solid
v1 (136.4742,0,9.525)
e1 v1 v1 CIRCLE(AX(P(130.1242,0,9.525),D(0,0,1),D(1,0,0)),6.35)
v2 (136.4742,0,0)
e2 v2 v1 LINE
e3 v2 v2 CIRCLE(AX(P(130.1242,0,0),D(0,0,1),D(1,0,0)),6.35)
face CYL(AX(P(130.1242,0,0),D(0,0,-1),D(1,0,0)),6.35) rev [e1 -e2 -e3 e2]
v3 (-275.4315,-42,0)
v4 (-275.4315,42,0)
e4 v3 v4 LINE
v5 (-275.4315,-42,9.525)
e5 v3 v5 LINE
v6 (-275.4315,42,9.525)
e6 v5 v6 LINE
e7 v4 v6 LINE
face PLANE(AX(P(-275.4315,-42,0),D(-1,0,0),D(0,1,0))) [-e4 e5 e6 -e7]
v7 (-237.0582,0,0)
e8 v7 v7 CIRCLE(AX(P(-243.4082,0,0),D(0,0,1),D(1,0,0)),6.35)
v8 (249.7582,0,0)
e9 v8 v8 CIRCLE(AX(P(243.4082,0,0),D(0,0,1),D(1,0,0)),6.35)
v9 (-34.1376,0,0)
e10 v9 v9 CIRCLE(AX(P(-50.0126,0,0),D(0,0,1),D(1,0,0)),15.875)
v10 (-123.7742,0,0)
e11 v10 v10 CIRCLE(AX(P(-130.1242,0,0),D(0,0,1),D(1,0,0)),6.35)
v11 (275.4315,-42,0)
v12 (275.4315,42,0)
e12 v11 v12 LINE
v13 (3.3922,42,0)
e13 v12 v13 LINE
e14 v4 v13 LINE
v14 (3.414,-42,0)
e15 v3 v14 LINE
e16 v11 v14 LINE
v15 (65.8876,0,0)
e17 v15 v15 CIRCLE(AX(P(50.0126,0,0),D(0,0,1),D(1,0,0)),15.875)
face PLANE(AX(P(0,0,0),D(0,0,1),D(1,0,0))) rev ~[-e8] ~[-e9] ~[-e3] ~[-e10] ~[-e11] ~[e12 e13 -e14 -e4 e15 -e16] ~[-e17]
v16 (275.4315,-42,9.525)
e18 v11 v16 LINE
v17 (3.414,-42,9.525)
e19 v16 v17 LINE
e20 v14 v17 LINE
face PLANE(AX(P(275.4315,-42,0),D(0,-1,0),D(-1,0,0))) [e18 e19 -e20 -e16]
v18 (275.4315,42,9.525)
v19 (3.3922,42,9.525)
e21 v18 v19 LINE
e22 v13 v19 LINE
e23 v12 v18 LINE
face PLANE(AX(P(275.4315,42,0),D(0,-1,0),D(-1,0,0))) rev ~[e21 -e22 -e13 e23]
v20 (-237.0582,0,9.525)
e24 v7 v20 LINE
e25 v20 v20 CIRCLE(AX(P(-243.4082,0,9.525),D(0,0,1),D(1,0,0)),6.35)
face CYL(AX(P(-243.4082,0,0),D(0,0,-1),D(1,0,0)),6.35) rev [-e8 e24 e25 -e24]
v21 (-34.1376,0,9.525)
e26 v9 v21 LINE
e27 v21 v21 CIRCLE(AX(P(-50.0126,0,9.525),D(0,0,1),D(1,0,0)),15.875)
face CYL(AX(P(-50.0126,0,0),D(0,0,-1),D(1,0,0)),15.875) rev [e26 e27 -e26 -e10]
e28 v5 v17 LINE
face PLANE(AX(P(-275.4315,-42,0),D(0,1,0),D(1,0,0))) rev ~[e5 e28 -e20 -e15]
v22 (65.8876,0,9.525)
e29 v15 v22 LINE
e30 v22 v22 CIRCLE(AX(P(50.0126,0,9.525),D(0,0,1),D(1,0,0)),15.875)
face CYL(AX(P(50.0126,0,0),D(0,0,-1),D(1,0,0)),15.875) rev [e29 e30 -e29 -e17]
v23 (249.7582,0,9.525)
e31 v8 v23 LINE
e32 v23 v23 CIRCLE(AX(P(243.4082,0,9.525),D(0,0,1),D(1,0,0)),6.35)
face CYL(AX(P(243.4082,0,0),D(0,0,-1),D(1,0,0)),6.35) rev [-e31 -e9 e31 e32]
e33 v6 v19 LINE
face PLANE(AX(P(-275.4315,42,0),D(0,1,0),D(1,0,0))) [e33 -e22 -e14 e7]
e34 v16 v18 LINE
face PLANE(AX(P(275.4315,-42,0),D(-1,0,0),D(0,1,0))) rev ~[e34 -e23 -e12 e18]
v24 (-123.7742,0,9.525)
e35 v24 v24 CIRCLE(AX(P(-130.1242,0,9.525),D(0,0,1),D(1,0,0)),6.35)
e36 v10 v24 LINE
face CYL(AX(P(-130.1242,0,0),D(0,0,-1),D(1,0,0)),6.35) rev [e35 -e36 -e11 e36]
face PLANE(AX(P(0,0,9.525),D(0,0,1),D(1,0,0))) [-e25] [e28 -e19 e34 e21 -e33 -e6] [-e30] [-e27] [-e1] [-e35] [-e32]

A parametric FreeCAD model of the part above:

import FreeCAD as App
import Part
import Sketcher
Q = App.Units.Quantity

doc = App.newDocument("Part")
body = doc.addObject("PartDesign::Body", "Body")

# Sketch on XY plane
sketch1 = body.newObject("Sketcher::SketchObject", "Sketch")
sketch1.AttachmentSupport = (doc.getObject("XY_Plane"), [""])
sketch1.MapMode = "FlatFace"
sketch1.addGeometry([
    Part.LineSegment(App.Vector(-275, 42, 0), App.Vector(-275, -42, 0)),  # 0
    Part.LineSegment(App.Vector(-275, -42, 0), App.Vector(275, -42, 0)),  # 1
    Part.LineSegment(App.Vector(275, -42, 0), App.Vector(275, 42, 0)),  # 2
    Part.LineSegment(App.Vector(275, 42, 0), App.Vector(-275, 42, 0)),  # 3
    Part.Circle(App.Vector(-243, 0, 0), App.Vector(0, 0, 1), 6),  # 4
    Part.Circle(App.Vector(-130, 0, 0), App.Vector(0, 0, 1), 6),  # 5
    Part.Circle(App.Vector(-50, 0, 0), App.Vector(0, 0, 1), 16),  # 6
    Part.Circle(App.Vector(50, 0, 0), App.Vector(0, 0, 1), 16),  # 7
    Part.Circle(App.Vector(130, 0, 0), App.Vector(0, 0, 1), 6),  # 8
    Part.Circle(App.Vector(243, 0, 0), App.Vector(0, 0, 1), 6),  # 9
], False)
sketch1.addConstraint([
    Sketcher.Constraint("Coincident", 0, 2, 1, 1),
    Sketcher.Constraint("Coincident", 1, 2, 2, 1),
    Sketcher.Constraint("Coincident", 2, 2, 3, 1),
    Sketcher.Constraint("Coincident", 3, 2, 0, 1),
    Sketcher.Constraint("Vertical", 0),
    Sketcher.Constraint("Horizontal", 1),
    Sketcher.Constraint("Vertical", 2),
    Sketcher.Constraint("Horizontal", 3),
    Sketcher.Constraint("Equal", 4, 5),
    Sketcher.Constraint("Equal", 6, 7),
    Sketcher.Constraint("Equal", 5, 8),
    Sketcher.Constraint("Equal", 8, 9),
    Sketcher.Constraint("Symmetric", 6, 3, 7, 3, -1, 1),
    Sketcher.Constraint("Symmetric", 5, 3, 8, 3, -1, 1),
    Sketcher.Constraint("Symmetric", 4, 3, 9, 3, -1, 1),
    Sketcher.Constraint("Symmetric", 0, 2, 2, 2, -1, 1),
    Sketcher.Constraint("PointOnObject", 4, 3, -1),
    Sketcher.Constraint("PointOnObject", 5, 3, -1),
    Sketcher.Constraint("PointOnObject", 6, 3, -1),
    Sketcher.Constraint("Diameter", 4, Q("0.5 in")),
    Sketcher.Constraint("Diameter", 6, Q("1.25 in")),
    Sketcher.Constraint("DistanceX", 4, 3, 5, 3, Q("4.46 in")),
    Sketcher.Constraint("DistanceX", 5, 3, 6, 3, Q("3.154 in")),
    Sketcher.Constraint("DistanceX", 6, 3, 7, 3, Q("3.938 in")),
    Sketcher.Constraint("DistanceX", 1, 1, 1, 2, Q("550.863 mm")),
    Sketcher.Constraint("DistanceY", 0, 2, 0, 1, Q("84 mm")),
])
pad1 = body.newObject("PartDesign::Pad", "Pad")
pad1.Profile = sketch1
pad1.Length = Q("0.375 in")

doc.recompute()
